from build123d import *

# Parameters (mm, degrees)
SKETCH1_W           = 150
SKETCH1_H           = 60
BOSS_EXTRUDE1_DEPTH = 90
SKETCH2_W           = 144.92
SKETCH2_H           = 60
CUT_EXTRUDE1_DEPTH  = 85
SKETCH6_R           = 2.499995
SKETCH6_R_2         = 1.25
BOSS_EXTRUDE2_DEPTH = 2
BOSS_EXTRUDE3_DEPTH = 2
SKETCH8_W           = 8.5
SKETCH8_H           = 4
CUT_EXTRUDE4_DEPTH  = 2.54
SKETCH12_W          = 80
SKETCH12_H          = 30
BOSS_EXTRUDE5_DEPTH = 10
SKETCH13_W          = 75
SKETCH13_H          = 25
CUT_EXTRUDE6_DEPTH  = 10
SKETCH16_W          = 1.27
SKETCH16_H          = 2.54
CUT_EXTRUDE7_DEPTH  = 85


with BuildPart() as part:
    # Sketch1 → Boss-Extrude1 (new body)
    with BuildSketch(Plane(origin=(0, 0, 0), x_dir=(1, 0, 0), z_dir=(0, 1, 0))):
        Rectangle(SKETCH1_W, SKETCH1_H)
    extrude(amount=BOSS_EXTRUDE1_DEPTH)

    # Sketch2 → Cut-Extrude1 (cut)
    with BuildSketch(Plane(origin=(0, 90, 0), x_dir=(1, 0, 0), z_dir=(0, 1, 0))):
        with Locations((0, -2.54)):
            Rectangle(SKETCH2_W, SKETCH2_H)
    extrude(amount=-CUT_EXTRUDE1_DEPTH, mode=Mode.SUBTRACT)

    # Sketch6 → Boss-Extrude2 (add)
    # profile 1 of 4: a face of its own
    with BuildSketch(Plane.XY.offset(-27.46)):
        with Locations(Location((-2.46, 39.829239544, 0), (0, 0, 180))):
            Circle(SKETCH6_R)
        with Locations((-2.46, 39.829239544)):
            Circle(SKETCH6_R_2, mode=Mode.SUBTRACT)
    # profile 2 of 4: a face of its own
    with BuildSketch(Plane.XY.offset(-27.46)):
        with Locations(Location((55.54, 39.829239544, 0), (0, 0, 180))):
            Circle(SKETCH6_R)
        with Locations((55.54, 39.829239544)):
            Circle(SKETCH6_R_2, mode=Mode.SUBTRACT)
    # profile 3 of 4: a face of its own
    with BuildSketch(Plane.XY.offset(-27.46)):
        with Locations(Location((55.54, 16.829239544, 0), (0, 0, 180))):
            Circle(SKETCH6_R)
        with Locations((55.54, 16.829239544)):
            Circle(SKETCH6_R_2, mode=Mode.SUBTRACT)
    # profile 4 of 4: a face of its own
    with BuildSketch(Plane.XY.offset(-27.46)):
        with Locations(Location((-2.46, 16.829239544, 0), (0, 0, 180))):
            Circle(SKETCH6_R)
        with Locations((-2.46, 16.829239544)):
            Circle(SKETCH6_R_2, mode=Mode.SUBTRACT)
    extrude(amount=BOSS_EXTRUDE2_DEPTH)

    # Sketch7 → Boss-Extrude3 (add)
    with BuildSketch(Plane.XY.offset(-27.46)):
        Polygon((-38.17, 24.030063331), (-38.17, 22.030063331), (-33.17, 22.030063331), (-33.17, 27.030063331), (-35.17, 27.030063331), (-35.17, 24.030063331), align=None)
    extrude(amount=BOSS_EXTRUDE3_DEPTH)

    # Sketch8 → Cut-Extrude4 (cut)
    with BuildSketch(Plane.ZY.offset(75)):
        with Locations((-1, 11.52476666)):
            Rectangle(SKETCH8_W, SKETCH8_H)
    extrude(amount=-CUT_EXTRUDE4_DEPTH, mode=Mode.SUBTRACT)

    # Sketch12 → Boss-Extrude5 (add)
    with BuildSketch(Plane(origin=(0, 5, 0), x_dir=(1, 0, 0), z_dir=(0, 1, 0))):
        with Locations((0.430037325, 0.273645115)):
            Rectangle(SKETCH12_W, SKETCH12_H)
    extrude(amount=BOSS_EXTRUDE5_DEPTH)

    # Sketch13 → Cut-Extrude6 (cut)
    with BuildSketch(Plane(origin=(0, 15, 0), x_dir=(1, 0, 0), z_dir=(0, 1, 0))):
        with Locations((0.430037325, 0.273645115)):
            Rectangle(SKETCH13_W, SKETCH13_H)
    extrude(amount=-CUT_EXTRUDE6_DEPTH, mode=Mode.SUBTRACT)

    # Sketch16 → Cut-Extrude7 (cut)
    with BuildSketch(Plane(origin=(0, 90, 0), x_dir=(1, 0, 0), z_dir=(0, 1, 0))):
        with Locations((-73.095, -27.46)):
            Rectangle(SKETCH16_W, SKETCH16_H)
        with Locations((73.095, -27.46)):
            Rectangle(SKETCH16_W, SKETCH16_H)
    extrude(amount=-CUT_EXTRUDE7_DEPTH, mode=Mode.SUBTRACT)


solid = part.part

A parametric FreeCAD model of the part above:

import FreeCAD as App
import Part
import Sketcher
from FreeCAD import Vector

doc = App.newDocument("Part")
body = doc.addObject("PartDesign::Body", "Body")

# Sketch on XZ plane
sketch1 = body.newObject("Sketcher::SketchObject", "Sketch")
sketch1.AttachmentSupport = (doc.getObject("XZ_Plane"), [""])
sketch1.MapMode = "FlatFace"
sketch1.addGeometry([
    Part.LineSegment(Vector(-75, -30, 0), Vector(-75, 30, 0)),
    Part.LineSegment(Vector(-75, 30, 0), Vector(75, 30, 0)),
    Part.LineSegment(Vector(75, 30, 0), Vector(75, -30, 0)),
    Part.LineSegment(Vector(75, -30, 0), Vector(-75, -30, 0)),
], False)
sketch1.addConstraint([
    Sketcher.Constraint("Coincident", 0, 2, 1, 1),
    Sketcher.Constraint("Coincident", 1, 2, 2, 1),
    Sketcher.Constraint("Coincident", 2, 2, 3, 1),
    Sketcher.Constraint("Coincident", 3, 2, 0, 1),
    Sketcher.Constraint("Vertical", 0),
    Sketcher.Constraint("Horizontal", 1),
    Sketcher.Constraint("Vertical", 2),
    Sketcher.Constraint("Horizontal", 3),
    Sketcher.Constraint("Symmetric", 0, 2, 2, 2, -1, 1),
    Sketcher.Constraint("DistanceX", 1, 1, 1, 2, 150.0),
    Sketcher.Constraint("DistanceY", 0, 1, 0, 2, 60.0),
])
pad1 = body.newObject("PartDesign::Pad", "Pad")
pad1.Profile = sketch1
pad1.Length = 90
pad1.Reversed = True

# Sketch on XZ plane
sketch2 = body.newObject("Sketcher::SketchObject", "Sketch001")
sketch2.AttachmentSupport = (doc.getObject("XZ_Plane"), [""])
sketch2.MapMode = "FlatFace"
sketch2.AttachmentOffset = App.Placement(Vector(0, 0, -90), App.Rotation())
sketch2.addGeometry([
    Part.LineSegment(Vector(-72, -27, 0), Vector(-72, 33, 0)),
    Part.LineSegment(Vector(-72, 33, 0), Vector(72, 33, 0)),
    Part.LineSegment(Vector(72, 33, 0), Vector(72, -27, 0)),
    Part.LineSegment(Vector(72, -27, 0), Vector(-72, -27, 0)),
], False)
sketch2.addConstraint([
    Sketcher.Constraint("Coincident", 0, 2, 1, 1),
    Sketcher.Constraint("Coincident", 1, 2, 2, 1),
    Sketcher.Constraint("Coincident", 2, 2, 3, 1),
    Sketcher.Constraint("Coincident", 3, 2, 0, 1),
    Sketcher.Constraint("Vertical", 0),
    Sketcher.Constraint("Horizontal", 1),
    Sketcher.Constraint("Vertical", 2),
    Sketcher.Constraint("Horizontal", 3),
    Sketcher.Constraint("DistanceY", 0, 1, 0, 2, 60.0),
    Sketcher.Constraint("DistanceX", 1, 1, 1, 2, 144.92),
    Sketcher.Constraint("DistanceX", 0, 2, -1, 1, 72.46),
    Sketcher.Constraint("DistanceY", -1, 1, 0, 2, 32.54),
])
pocket1 = body.newObject("PartDesign::Pocket", "Pocket")
pocket1.Profile = sketch2
pocket1.Length = 85
pocket1.Reversed = True

# Sketch on XY plane
sketch3 = body.newObject("Sketcher::SketchObject", "Sketch002")
sketch3.AttachmentSupport = (doc.getObject("XY_Plane"), [""])
sketch3.MapMode = "FlatFace"
sketch3.AttachmentOffset = App.Placement(Vector(0, 0, -27.46), App.Rotation())
sketch3.addGeometry([
    Part.Circle(Vector(-2.5, 39.8, 0), Vector(0, 0, 1), 2.5),  # 0
    Part.Circle(Vector(-2.5, 39.8, 0), Vector(0, 0, 1), 1.2),  # 1
    Part.Circle(Vector(55.5, 39.8, 0), Vector(0, 0, 1), 2.5),  # 2
    Part.Circle(Vector(55.5, 39.8, 0), Vector(0, 0, 1), 1.2),  # 3
    Part.Circle(Vector(55.5, 16.8, 0), Vector(0, 0, 1), 2.5),  # 4
    Part.Circle(Vector(55.5, 16.8, 0), Vector(0, 0, 1), 1.2),  # 5
    Part.Circle(Vector(-2.5, 16.8, 0), Vector(0, 0, 1), 2.5),  # 6
    Part.Circle(Vector(-2.5, 16.8, 0), Vector(0, 0, 1), 1.2),  # 7
], False)
sketch3.addConstraint([
    Sketcher.Constraint("Coincident", 1, 3, 0, 3),
    Sketcher.Constraint("Coincident", 3, 3, 2, 3),
    Sketcher.Constraint("Coincident", 5, 3, 4, 3),
    Sketcher.Constraint("Coincident", 7, 3, 6, 3),
    Sketcher.Constraint("Equal", 0, 2),
    Sketcher.Constraint("Equal", 1, 3),
    Sketcher.Constraint("Equal", 2, 4),
    Sketcher.Constraint("Equal", 3, 5),
    Sketcher.Constraint("Equal", 4, 6),
    Sketcher.Constraint("Equal", 5, 7),
    Sketcher.Constraint("Horizontal", 1, 3, 2, 3),
    Sketcher.Constraint("Horizontal", 5, 3, 6, 3),
    Sketcher.Constraint("Vertical", 3, 3, 4, 3),
    Sketcher.Constraint("Vertical", 1, 3, 6, 3),
    Sketcher.Constraint("Diameter", 1, 2.5),
    Sketcher.Constraint("DistanceX", 0, 3, 2, 3, 58.0),
    Sketcher.Constraint("DistanceY", 4, 3, 2, 3, 23.0),
    Sketcher.Constraint("Diameter", 0, 4.99999),
    Sketcher.Constraint("DistanceX", 0, 3, -1, 1, 2.46),
    Sketcher.Constraint("DistanceY", -1, 1, 0, 3, 39.82924),
])
pad2 = body.newObject("PartDesign::Pad", "Pad001")
pad2.Profile = sketch3
pad2.Length = 2

# Sketch on XY plane
sketch4 = body.newObject("Sketcher::SketchObject", "Sketch003")
sketch4.AttachmentSupport = (doc.getObject("XY_Plane"), [""])
sketch4.MapMode = "FlatFace"
sketch4.AttachmentOffset = App.Placement(Vector(0, 0, -27.46), App.Rotation())
sketch4.addGeometry([
    Part.LineSegment(Vector(-38.2, 24, 0), Vector(-38.2, 22, 0)),  # 0
    Part.LineSegment(Vector(-38.2, 22, 0), Vector(-33.2, 22, 0)),  # 1
    Part.LineSegment(Vector(-33.2, 22, 0), Vector(-33.2, 27, 0)),  # 2
    Part.LineSegment(Vector(-33.2, 27, 0), Vector(-35.2, 27, 0)),  # 3
    Part.LineSegment(Vector(-35.2, 27, 0), Vector(-35.2, 24, 0)),  # 4
    Part.LineSegment(Vector(-35.2, 24, 0), Vector(-38.2, 24, 0)),  # 5
], False)
sketch4.addConstraint([
    Sketcher.Constraint("Coincident", 0, 2, 1, 1),
    Sketcher.Constraint("Coincident", 1, 2, 2, 1),
    Sketcher.Constraint("Coincident", 2, 2, 3, 1),
    Sketcher.Constraint("Coincident", 3, 2, 4, 1),
    Sketcher.Constraint("Coincident", 4, 2, 5, 1),
    Sketcher.Constraint("Coincident", 5, 2, 0, 1),
    Sketcher.Constraint("Vertical", 0),
    Sketcher.Constraint("Horizontal", 1),
    Sketcher.Constraint("Vertical", 2),
    Sketcher.Constraint("Horizontal", 3),
    Sketcher.Constraint("Vertical", 4),
    Sketcher.Constraint("Horizontal", 5),
    Sketcher.Constraint("Equal", 3, 0),
    Sketcher.Constraint("Equal", 1, 2),
    Sketcher.Constraint("DistanceX", 1, 1, 1, 2, 5.0),
    Sketcher.Constraint("DistanceX", 3, 2, 3, 1, 2.0),
    Sketcher.Constraint("DistanceX", 0, 2, -1, 1, 38.17),
    Sketcher.Constraint("DistanceY", -1, 1, 0, 2, 22.030063),
])
pad3 = body.newObject("PartDesign::Pad", "Pad002")
pad3.Profile = sketch4
pad3.Length = 2

# Sketch on YZ plane
sketch5 = body.newObject("Sketcher::SketchObject", "Sketch004")
sketch5.AttachmentSupport = (doc.getObject("YZ_Plane"), [""])
sketch5.MapMode = "FlatFace"
sketch5.AttachmentOffset = App.Placement(Vector(0, 0, -75), App.Rotation())
sketch5.addGeometry([
    Part.LineSegment(Vector(13.5, -5.2, 0), Vector(9.5, -5.2, 0)),
    Part.LineSegment(Vector(9.5, -5.2, 0), Vector(9.5, 3.2, 0)),
    Part.LineSegment(Vector(9.5, 3.2, 0), Vector(13.5, 3.2, 0)),
    Part.LineSegment(Vector(13.5, 3.2, 0), Vector(13.5, -5.2, 0)),
], False)
sketch5.addConstraint([
    Sketcher.Constraint("Coincident", 0, 2, 1, 1),
    Sketcher.Constraint("Coincident", 1, 2, 2, 1),
    Sketcher.Constraint("Coincident", 2, 2, 3, 1),
    Sketcher.Constraint("Coincident", 3, 2, 0, 1),
    Sketcher.Constraint("Horizontal", 0),
    Sketcher.Constraint("Vertical", 1),
    Sketcher.Constraint("Horizontal", 2),
    Sketcher.Constraint("Vertical", 3),
    Sketcher.Constraint("DistanceX", 0, 2, 0, 1, 4.0),
    Sketcher.Constraint("DistanceY", 1, 1, 1, 2, 8.5),
    Sketcher.Constraint("DistanceY", 0, 2, -1, 1, 5.25),
    Sketcher.Constraint("DistanceX", -1, 1, 0, 2, 9.524767),
])
pocket2 = body.newObject("PartDesign::Pocket", "Pocket001")
pocket2.Profile = sketch5
pocket2.Length = 2.54
pocket2.Reversed = True

# Sketch on XZ plane
sketch6 = body.newObject("Sketcher::SketchObject", "Sketch005")
sketch6.AttachmentSupport = (doc.getObject("XZ_Plane"), [""])
sketch6.MapMode = "FlatFace"
sketch6.AttachmentOffset = App.Placement(Vector(0, 0, -5), App.Rotation())
sketch6.addGeometry([
    Part.LineSegment(Vector(-40, -15, 0), Vector(-40, 15, 0)),
    Part.LineSegment(Vector(-40, 15, 0), Vector(40, 15, 0)),
    Part.LineSegment(Vector(40, 15, 0), Vector(40, -15, 0)),
    Part.LineSegment(Vector(40, -15, 0), Vector(-40, -15, 0)),
], False)
sketch6.addConstraint([
    Sketcher.Constraint("Coincident", 0, 2, 1, 1),
    Sketcher.Constraint("Coincident", 1, 2, 2, 1),
    Sketcher.Constraint("Coincident", 2, 2, 3, 1),
    Sketcher.Constraint("Coincident", 3, 2, 0, 1),
    Sketcher.Constraint("Vertical", 0),
    Sketcher.Constraint("Horizontal", 1),
    Sketcher.Constraint("Vertical", 2),
    Sketcher.Constraint("Horizontal", 3),
    Sketcher.Constraint("DistanceX", 1, 1, 1, 2, 80.0),
    Sketcher.Constraint("DistanceY", 0, 1, 0, 2, 30.0),
    Sketcher.Constraint("DistanceX", 0, 2, -1, 1, 39.569963),
    Sketcher.Constraint("DistanceY", -1, 1, 0, 2, 14.726355),
])
pad4 = body.newObject("PartDesign::Pad", "Pad003")
pad4.Profile = sketch6
pad4.Length = 10
pad4.Reversed = True

# Sketch on XZ plane
sketch7 = body.newObject("Sketcher::SketchObject", "Sketch006")
sketch7.AttachmentSupport = (doc.getObject("XZ_Plane"), [""])
sketch7.MapMode = "FlatFace"
sketch7.AttachmentOffset = App.Placement(Vector(0, 0, -15), App.Rotation())
sketch7.addGeometry([
    Part.LineSegment(Vector(-37, -13, 0), Vector(-37, 12, 0)),
    Part.LineSegment(Vector(-37, 12, 0), Vector(38, 12, 0)),
    Part.LineSegment(Vector(38, 12, 0), Vector(38, -13, 0)),
    Part.LineSegment(Vector(38, -13, 0), Vector(-37, -13, 0)),
], False)
sketch7.addConstraint([
    Sketcher.Constraint("Coincident", 0, 2, 1, 1),
    Sketcher.Constraint("Coincident", 1, 2, 2, 1),
    Sketcher.Constraint("Coincident", 2, 2, 3, 1),
    Sketcher.Constraint("Coincident", 3, 2, 0, 1),
    Sketcher.Constraint("Vertical", 0),
    Sketcher.Constraint("Horizontal", 1),
    Sketcher.Constraint("Vertical", 2),
    Sketcher.Constraint("Horizontal", 3),
    Sketcher.Constraint("DistanceX", 1, 1, 1, 2, 75.0),
    Sketcher.Constraint("DistanceY", 0, 1, 0, 2, 25.0),
    Sketcher.Constraint("DistanceX", 0, 2, -1, 1, 37.069963),
    Sketcher.Constraint("DistanceY", -1, 1, 0, 2, 12.226355),
])
pocket3 = body.newObject("PartDesign::Pocket", "Pocket002")
pocket3.Profile = sketch7
pocket3.Length = 10
pocket3.Reversed = True

# Sketch on XZ plane
sketch8 = body.newObject("Sketcher::SketchObject", "Sketch007")
sketch8.AttachmentSupport = (doc.getObject("XZ_Plane"), [""])
sketch8.MapMode = "FlatFace"
sketch8.AttachmentOffset = App.Placement(Vector(0, 0, -90), App.Rotation())
sketch8.addGeometry([
    Part.LineSegment(Vector(-73.7, 26.2, 0), Vector(-73.7, 28.7, 0)),  # 0
    Part.LineSegment(Vector(-73.7, 28.7, 0), Vector(-72.5, 28.7, 0)),  # 1
    Part.LineSegment(Vector(-72.5, 28.7, 0), Vector(-72.5, 26.2, 0)),  # 2
    Part.LineSegment(Vector(-72.5, 26.2, 0), Vector(-73.7, 26.2, 0)),  # 3
    Part.LineSegment(Vector(72.5, 26.2, 0), Vector(72.5, 28.7, 0)),  # 4
    Part.LineSegment(Vector(72.5, 28.7, 0), Vector(73.7, 28.7, 0)),  # 5
    Part.LineSegment(Vector(73.7, 28.7, 0), Vector(73.7, 26.2, 0)),  # 6
    Part.LineSegment(Vector(73.7, 26.2, 0), Vector(72.5, 26.2, 0)),  # 7
], False)
sketch8.addConstraint([
    Sketcher.Constraint("Coincident", 0, 2, 1, 1),
    Sketcher.Constraint("Coincident", 1, 2, 2, 1),
    Sketcher.Constraint("Coincident", 2, 2, 3, 1),
    Sketcher.Constraint("Coincident", 3, 2, 0, 1),
    Sketcher.Constraint("Coincident", 4, 2, 5, 1),
    Sketcher.Constraint("Coincident", 5, 2, 6, 1),
    Sketcher.Constraint("Coincident", 6, 2, 7, 1),
    Sketcher.Constraint("Coincident", 7, 2, 4, 1),
    Sketcher.Constraint("Vertical", 0),
    Sketcher.Constraint("Horizontal", 1),
    Sketcher.Constraint("Vertical", 2),
    Sketcher.Constraint("Horizontal", 3),
    Sketcher.Constraint("Vertical", 4),
    Sketcher.Constraint("Horizontal", 5),
    Sketcher.Constraint("Vertical", 6),
    Sketcher.Constraint("Horizontal", 7),
    Sketcher.Constraint("Symmetric", 1, 2, 4, 2, -2),
    Sketcher.Constraint("Symmetric", 3, 2, 6, 2, -2),
    Sketcher.Constraint("DistanceX", 1, 1, 1, 2, 1.27),
    Sketcher.Constraint("DistanceY", 0, 1, 0, 2, 2.54),
    Sketcher.Constraint("DistanceX", 0, 2, -1, 1, 73.73),
    Sketcher.Constraint("DistanceY", -1, 1, 0, 2, 28.73),
])
pocket4 = body.newObject("PartDesign::Pocket", "Pocket003")
pocket4.Profile = sketch8
pocket4.Length = 85
pocket4.Reversed = True

doc.recompute()
